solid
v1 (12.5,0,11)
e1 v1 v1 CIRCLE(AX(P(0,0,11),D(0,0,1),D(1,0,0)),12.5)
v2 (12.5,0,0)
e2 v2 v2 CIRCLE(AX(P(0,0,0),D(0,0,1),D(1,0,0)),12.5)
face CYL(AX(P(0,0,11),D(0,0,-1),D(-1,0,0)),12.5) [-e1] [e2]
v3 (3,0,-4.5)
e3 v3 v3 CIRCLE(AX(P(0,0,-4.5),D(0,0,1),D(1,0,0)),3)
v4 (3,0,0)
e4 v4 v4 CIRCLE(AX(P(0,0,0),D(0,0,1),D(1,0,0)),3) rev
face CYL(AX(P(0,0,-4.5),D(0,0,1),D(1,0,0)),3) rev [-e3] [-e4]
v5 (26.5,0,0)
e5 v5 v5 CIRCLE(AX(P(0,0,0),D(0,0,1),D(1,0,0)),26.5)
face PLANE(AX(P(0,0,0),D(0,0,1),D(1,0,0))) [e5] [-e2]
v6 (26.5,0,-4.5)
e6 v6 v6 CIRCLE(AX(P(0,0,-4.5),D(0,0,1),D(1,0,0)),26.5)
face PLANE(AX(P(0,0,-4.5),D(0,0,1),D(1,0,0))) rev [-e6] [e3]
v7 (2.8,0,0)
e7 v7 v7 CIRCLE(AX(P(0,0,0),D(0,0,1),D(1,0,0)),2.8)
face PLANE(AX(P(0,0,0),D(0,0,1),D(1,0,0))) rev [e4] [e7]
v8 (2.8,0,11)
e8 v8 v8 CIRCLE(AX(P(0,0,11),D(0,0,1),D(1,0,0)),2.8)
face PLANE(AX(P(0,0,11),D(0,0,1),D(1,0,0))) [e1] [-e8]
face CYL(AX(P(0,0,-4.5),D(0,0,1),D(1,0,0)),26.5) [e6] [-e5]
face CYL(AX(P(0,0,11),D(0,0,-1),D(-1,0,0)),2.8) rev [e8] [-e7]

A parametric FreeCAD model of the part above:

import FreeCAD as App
import Part
import Sketcher
from FreeCAD import Vector

doc = App.newDocument("Part")
params = doc.addObject("Spreadsheet::Sheet", "Params")
for row, (alias, value) in enumerate([
    ("sketch1_diameter", "53 mm"),
    ("sketch1_diameter2", "6 mm"),
    ("pad1_length", "4.5 mm"),
    ("sketch2_diameter", "25 mm"),
    ("sketch2_diameter2", "5.6 mm"),
    ("pad2_length", "11 mm"),
], start=1):
    params.set(f"A{row}", alias)
    params.set(f"B{row}", "=" + value)
    params.setAlias(f"B{row}", alias)

body = doc.addObject("PartDesign::Body", "Body")

# Sketch on XY plane
sketch1 = doc.addObject("Sketcher::SketchObject", "Sketch")
body.addObject(sketch1)
sketch1.AttachmentSupport = (doc.XY_Plane, [""])
sketch1.MapMode = "FlatFace"
sketch1.addGeometry([
    Part.Circle(Vector(0, 0, 0), Vector(0, 0, 1), 26.5),
    Part.Circle(Vector(0, 0, 0), Vector(0, 0, 1), 3),
], False)
sketch1.addConstraint([
    Sketcher.Constraint("Coincident", 0, 3, -1, 1),
    Sketcher.Constraint("Coincident", 1, 3, -1, 1),
    Sketcher.Constraint("Diameter", 0, 53.0),
    Sketcher.Constraint("Diameter", 1, 6.0),
])
sketch1.setExpression("Constraints[2]", "Params.sketch1_diameter")
sketch1.setExpression("Constraints[3]", "Params.sketch1_diameter2")
pad1 = doc.addObject("PartDesign::Pad", "Pad")
body.addObject(pad1)
pad1.Profile = sketch1
pad1.setExpression("Length", "Params.pad1_length")
pad1.Reversed = True

# Sketch on XY plane
sketch2 = doc.addObject("Sketcher::SketchObject", "Sketch001")
body.addObject(sketch2)
sketch2.AttachmentSupport = (doc.XY_Plane, [""])
sketch2.MapMode = "FlatFace"
sketch2.addGeometry([
    Part.Circle(Vector(0, 0, 0), Vector(0, 0, 1), 12.5),
    Part.Circle(Vector(0, 0, 0), Vector(0, 0, 1), 2.8),
], False)
sketch2.addConstraint([
    Sketcher.Constraint("Coincident", 0, 3, -1, 1),
    Sketcher.Constraint("Coincident", 1, 3, -1, 1),
    Sketcher.Constraint("Diameter", 0, 25.0),
    Sketcher.Constraint("Diameter", 1, 5.6),
])
sketch2.setExpression("Constraints[2]", "Params.sketch2_diameter")
sketch2.setExpression("Constraints[3]", "Params.sketch2_diameter2")
pad2 = doc.addObject("PartDesign::Pad", "Pad001")
body.addObject(pad2)
pad2.Profile = sketch2
pad2.setExpression("Length", "Params.pad2_length")

doc.recompute()
